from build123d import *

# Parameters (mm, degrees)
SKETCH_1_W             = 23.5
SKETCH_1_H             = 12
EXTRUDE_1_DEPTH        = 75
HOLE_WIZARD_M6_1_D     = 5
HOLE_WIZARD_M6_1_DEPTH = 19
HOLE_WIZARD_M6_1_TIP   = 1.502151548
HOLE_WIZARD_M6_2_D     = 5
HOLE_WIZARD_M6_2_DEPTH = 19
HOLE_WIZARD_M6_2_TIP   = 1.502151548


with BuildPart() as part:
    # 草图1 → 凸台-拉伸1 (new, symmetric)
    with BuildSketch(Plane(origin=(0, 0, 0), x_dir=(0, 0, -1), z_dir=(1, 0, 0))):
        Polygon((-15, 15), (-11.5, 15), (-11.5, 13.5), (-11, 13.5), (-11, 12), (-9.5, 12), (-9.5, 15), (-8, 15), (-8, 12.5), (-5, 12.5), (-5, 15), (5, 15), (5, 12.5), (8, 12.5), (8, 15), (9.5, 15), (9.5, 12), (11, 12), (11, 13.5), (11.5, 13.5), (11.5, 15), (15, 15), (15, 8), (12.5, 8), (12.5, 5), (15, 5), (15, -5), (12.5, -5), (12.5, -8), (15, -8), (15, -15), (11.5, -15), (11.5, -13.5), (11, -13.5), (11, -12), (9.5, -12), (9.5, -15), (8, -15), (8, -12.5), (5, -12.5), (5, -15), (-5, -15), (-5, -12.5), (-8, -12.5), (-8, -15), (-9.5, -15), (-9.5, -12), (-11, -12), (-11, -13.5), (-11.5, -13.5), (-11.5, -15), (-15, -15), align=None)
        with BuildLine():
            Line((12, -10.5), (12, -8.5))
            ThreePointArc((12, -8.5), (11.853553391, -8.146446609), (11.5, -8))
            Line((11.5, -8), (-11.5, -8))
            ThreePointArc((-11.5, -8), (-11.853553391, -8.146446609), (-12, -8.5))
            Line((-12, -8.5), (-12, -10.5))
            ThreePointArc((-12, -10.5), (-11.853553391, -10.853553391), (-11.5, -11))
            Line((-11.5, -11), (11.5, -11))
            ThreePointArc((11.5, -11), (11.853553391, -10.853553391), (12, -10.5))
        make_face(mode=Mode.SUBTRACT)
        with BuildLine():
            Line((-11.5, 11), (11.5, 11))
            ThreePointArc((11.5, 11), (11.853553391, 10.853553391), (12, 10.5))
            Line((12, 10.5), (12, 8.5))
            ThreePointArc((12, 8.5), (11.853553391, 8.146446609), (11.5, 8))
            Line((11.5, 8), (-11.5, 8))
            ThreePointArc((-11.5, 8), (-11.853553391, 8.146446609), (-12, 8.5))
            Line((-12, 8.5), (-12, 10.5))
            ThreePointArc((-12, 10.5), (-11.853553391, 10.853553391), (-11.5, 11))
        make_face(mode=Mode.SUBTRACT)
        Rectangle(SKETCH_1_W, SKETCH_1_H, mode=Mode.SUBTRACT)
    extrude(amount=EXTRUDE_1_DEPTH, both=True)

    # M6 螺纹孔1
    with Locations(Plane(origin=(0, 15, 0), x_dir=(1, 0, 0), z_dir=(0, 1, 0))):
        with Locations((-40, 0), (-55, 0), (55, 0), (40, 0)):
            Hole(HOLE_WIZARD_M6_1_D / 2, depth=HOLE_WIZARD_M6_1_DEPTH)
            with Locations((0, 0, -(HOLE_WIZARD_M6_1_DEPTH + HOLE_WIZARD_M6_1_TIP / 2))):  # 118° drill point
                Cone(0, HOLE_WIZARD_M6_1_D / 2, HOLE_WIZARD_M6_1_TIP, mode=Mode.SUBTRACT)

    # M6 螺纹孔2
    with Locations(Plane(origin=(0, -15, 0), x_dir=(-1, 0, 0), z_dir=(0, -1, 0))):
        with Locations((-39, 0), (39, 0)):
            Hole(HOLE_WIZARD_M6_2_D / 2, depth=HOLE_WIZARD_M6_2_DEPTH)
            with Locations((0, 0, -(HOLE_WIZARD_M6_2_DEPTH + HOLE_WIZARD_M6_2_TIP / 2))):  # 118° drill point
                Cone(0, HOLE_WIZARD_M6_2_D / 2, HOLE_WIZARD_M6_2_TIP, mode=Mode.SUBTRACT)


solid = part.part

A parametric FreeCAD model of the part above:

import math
import FreeCAD as App
import Part
import Sketcher
Q = App.Units.Quantity


def add_polygon(sketch, points):
    """Adds a closed chain of lines whose ends are joined by coincident constraints."""
    first, n = sketch.GeometryCount, len(points)
    for a, b in zip(points, points[1:] + points[:1]):
        sketch.addGeometry(Part.LineSegment(App.Vector(*a, 0), App.Vector(*b, 0)), False)
    for i in range(n):
        sketch.addConstraint(Sketcher.Constraint("Coincident", first + i, 2, first + (i + 1) % n, 1))

doc = App.newDocument("Part")
body = doc.addObject("PartDesign::Body", "Body")

sketch1 = doc.addObject("Sketcher::SketchObject", "Sketch")
body.addObject(sketch1)
sketch1.AttachmentSupport = (doc.YZ_Plane, [""])
sketch1.MapMode = "FlatFace"
add_polygon(sketch1, [(15, 11.5), (15, 15), (-15, 15), (-15, 11.5), (-13.5, 11.5), (-13.5, 11), (-12, 11), (-12, 9.5), (-15, 9.5), (-15, 8), (-12.5, 8), (-12.5, 5), (-15, 5), (-15, -5), (-12.5, -5), (-12.5, -8), (-15, -8), (-15, -9.5), (-12, -9.5), (-12, -11), (-13.5, -11), (-13.5, -11.5), (-15, -11.5), (-15, -15), (-8, -15), (-8, -12.5), (-5, -12.5), (-5, -15), (5, -15), (5, -12.5), (8, -12.5), (8, -15), (15, -15), (15, -11.5), (13.5, -11.5), (13.5, -11), (12, -11), (12, -9.5), (15, -9.5), (15, -8), (12.5, -8), (12.5, -5), (15, -5), (15, 5), (12.5, 5), (12.5, 8), (15, 8), (15, 9.5), (12, 9.5), (12, 11), (13.5, 11), (13.5, 11.5)])
sketch1.addGeometry(Part.ArcOfCircle(Part.Circle(App.Vector(-10.5, -11.5, 0), App.Vector(0, 0, 1), 0.5), math.radians(180), math.radians(270)), False)
sketch1.addGeometry(Part.LineSegment(App.Vector(-11, -11.5, 0), App.Vector(-11, 11.5, 0)), False)
sketch1.addGeometry(Part.ArcOfCircle(Part.Circle(App.Vector(-10.5, 11.5, 0), App.Vector(0, 0, 1), 0.5), math.radians(90), math.radians(180)), False)
sketch1.addGeometry(Part.LineSegment(App.Vector(-10.5, 12, 0), App.Vector(-8.5, 12, 0)), False)
sketch1.addGeometry(Part.ArcOfCircle(Part.Circle(App.Vector(-8.5, 11.5, 0), App.Vector(0, 0, 1), 0.5), math.radians(0), math.radians(90)), False)
sketch1.addGeometry(Part.LineSegment(App.Vector(-8, 11.5, 0), App.Vector(-8, -11.5, 0)), False)
sketch1.addGeometry(Part.ArcOfCircle(Part.Circle(App.Vector(-8.5, -11.5, 0), App.Vector(0, 0, 1), 0.5), math.radians(-90), math.radians(0)), False)
sketch1.addGeometry(Part.LineSegment(App.Vector(-8.5, -12, 0), App.Vector(-10.5, -12, 0)), False)
add_polygon(sketch1, [(-6, 11.75), (6, 11.75), (6, -11.75), (-6, -11.75)])
sketch1.addGeometry(Part.LineSegment(App.Vector(11, 11.5, 0), App.Vector(11, -11.5, 0)), False)
sketch1.addGeometry(Part.ArcOfCircle(Part.Circle(App.Vector(10.5, -11.5, 0), App.Vector(0, 0, 1), 0.5), math.radians(-90), math.radians(0)), False)
sketch1.addGeometry(Part.LineSegment(App.Vector(10.5, -12, 0), App.Vector(8.5, -12, 0)), False)
sketch1.addGeometry(Part.ArcOfCircle(Part.Circle(App.Vector(8.5, -11.5, 0), App.Vector(0, 0, 1), 0.5), math.radians(180), math.radians(270)), False)
sketch1.addGeometry(Part.LineSegment(App.Vector(8, -11.5, 0), App.Vector(8, 11.5, 0)), False)
sketch1.addGeometry(Part.ArcOfCircle(Part.Circle(App.Vector(8.5, 11.5, 0), App.Vector(0, 0, 1), 0.5), math.radians(90), math.radians(180)), False)
sketch1.addGeometry(Part.LineSegment(App.Vector(8.5, 12, 0), App.Vector(10.5, 12, 0)), False)
sketch1.addGeometry(Part.ArcOfCircle(Part.Circle(App.Vector(10.5, 11.5, 0), App.Vector(0, 0, 1), 0.5), math.radians(0), math.radians(90)), False)
sketch1.addConstraint([
    Sketcher.Constraint("Tangent", 52, 1, 53, 1),
    Sketcher.Constraint("Tangent", 53, 2, 54, 2),
    Sketcher.Constraint("Tangent", 54, 1, 55, 1),
    Sketcher.Constraint("Tangent", 55, 2, 56, 2),
    Sketcher.Constraint("Tangent", 56, 1, 57, 1),
    Sketcher.Constraint("Tangent", 57, 2, 58, 2),
    Sketcher.Constraint("Tangent", 58, 1, 59, 1),
    Sketcher.Constraint("Tangent", 59, 2, 52, 2),
    Sketcher.Constraint("Tangent", 64, 2, 65, 2),
    Sketcher.Constraint("Tangent", 65, 1, 66, 1),
    Sketcher.Constraint("Tangent", 66, 2, 67, 2),
    Sketcher.Constraint("Tangent", 67, 1, 68, 1),
    Sketcher.Constraint("Tangent", 68, 2, 69, 2),
    Sketcher.Constraint("Tangent", 69, 1, 70, 1),
    Sketcher.Constraint("Tangent", 70, 2, 71, 2),
    Sketcher.Constraint("Tangent", 71, 1, 64, 1),
    Sketcher.Constraint("Vertical", 0),
    Sketcher.Constraint("Horizontal", 1),
    Sketcher.Constraint("Vertical", 2),
    Sketcher.Constraint("Horizontal", 3),
    Sketcher.Constraint("Vertical", 4),
    Sketcher.Constraint("Horizontal", 5),
    Sketcher.Constraint("Vertical", 6),
    Sketcher.Constraint("Horizontal", 7),
    Sketcher.Constraint("Vertical", 8),
    Sketcher.Constraint("Horizontal", 9),
    Sketcher.Constraint("Vertical", 10),
    Sketcher.Constraint("Horizontal", 11),
    Sketcher.Constraint("Vertical", 12),
    Sketcher.Constraint("Horizontal", 13),
    Sketcher.Constraint("Vertical", 14),
    Sketcher.Constraint("Horizontal", 15),
    Sketcher.Constraint("Vertical", 16),
    Sketcher.Constraint("Horizontal", 17),
    Sketcher.Constraint("Vertical", 18),
    Sketcher.Constraint("Horizontal", 19),
    Sketcher.Constraint("Vertical", 20),
    Sketcher.Constraint("Horizontal", 21),
    Sketcher.Constraint("Vertical", 22),
    Sketcher.Constraint("Horizontal", 23),
    Sketcher.Constraint("Vertical", 24),
    Sketcher.Constraint("Horizontal", 25),
    Sketcher.Constraint("Vertical", 26),
    Sketcher.Constraint("Horizontal", 27),
    Sketcher.Constraint("Vertical", 28),
    Sketcher.Constraint("Horizontal", 29),
    Sketcher.Constraint("Vertical", 30),
    Sketcher.Constraint("Horizontal", 31),
    Sketcher.Constraint("Vertical", 32),
    Sketcher.Constraint("Horizontal", 33),
    Sketcher.Constraint("Vertical", 34),
    Sketcher.Constraint("Horizontal", 35),
    Sketcher.Constraint("Vertical", 36),
    Sketcher.Constraint("Horizontal", 37),
    Sketcher.Constraint("Vertical", 38),
    Sketcher.Constraint("Horizontal", 39),
    Sketcher.Constraint("Vertical", 40),
    Sketcher.Constraint("Horizontal", 41),
    Sketcher.Constraint("Vertical", 42),
    Sketcher.Constraint("Horizontal", 43),
    Sketcher.Constraint("Vertical", 44),
    Sketcher.Constraint("Horizontal", 45),
    Sketcher.Constraint("Vertical", 46),
    Sketcher.Constraint("Horizontal", 47),
    Sketcher.Constraint("Vertical", 48),
    Sketcher.Constraint("Horizontal", 49),
    Sketcher.Constraint("Vertical", 50),
    Sketcher.Constraint("Horizontal", 51),
    Sketcher.Constraint("Vertical", 53),
    Sketcher.Constraint("Horizontal", 55),
    Sketcher.Constraint("Vertical", 57),
    Sketcher.Constraint("Horizontal", 59),
    Sketcher.Constraint("Horizontal", 60),
    Sketcher.Constraint("Vertical", 61),
    Sketcher.Constraint("Horizontal", 62),
    Sketcher.Constraint("Vertical", 63),
    Sketcher.Constraint("Vertical", 64),
    Sketcher.Constraint("Horizontal", 66),
    Sketcher.Constraint("Vertical", 68),
    Sketcher.Constraint("Horizontal", 70),
    Sketcher.Constraint("Equal", 52, 54),
    Sketcher.Constraint("Equal", 54, 56),
    Sketcher.Constraint("Equal", 56, 58),
    Sketcher.Constraint("Equal", 58, 65),
    Sketcher.Constraint("Equal", 65, 67),
    Sketcher.Constraint("Equal", 67, 69),
    Sketcher.Constraint("Equal", 69, 71),
    Sketcher.Constraint("Symmetric", 54, 3, 65, 3, -1, 1),
    Sketcher.Constraint("Symmetric", 58, 3, 69, 3, -1, 1),
    Sketcher.Constraint("Symmetric", 0, 2, 22, 2, -1, 1),
    Sketcher.Constraint("Symmetric", 1, 2, 31, 2, -1, 1),
    Sketcher.Constraint("Symmetric", 3, 2, 33, 2, -1, 1),
    Sketcher.Constraint("Symmetric", 5, 2, 35, 2, -1, 1),
    Sketcher.Constraint("Symmetric", 7, 2, 37, 2, -1, 1),
    Sketcher.Constraint("Symmetric", 9, 2, 39, 2, -1, 1),
    Sketcher.Constraint("Symmetric", 11, 2, 41, 2, -1, 1),
    Sketcher.Constraint("Symmetric", 13, 2, 43, 2, -1, 1),
    Sketcher.Constraint("Symmetric", 15, 2, 45, 2, -1, 1),
    Sketcher.Constraint("Symmetric", 17, 2, 47, 2, -1, 1),
    Sketcher.Constraint("Symmetric", 19, 2, 49, 2, -1, 1),
    Sketcher.Constraint("Symmetric", 60, 2, 62, 2, -1, 1),
    Sketcher.Constraint("Symmetric", 25, 2, 28, 2, -2),
    Sketcher.Constraint("Symmetric", 21, 2, 32, 2, -2),
    Sketcher.Constraint("Symmetric", 19, 2, 34, 2, -2),
    Sketcher.Constraint("Symmetric", 17, 2, 36, 2, -2),
    Sketcher.Constraint("Symmetric", 15, 2, 38, 2, -2),
    Sketcher.Constraint("Symmetric", 13, 2, 40, 2, -2),
    Sketcher.Constraint("Horizontal", 58, 3, 65, 3),
    Sketcher.Constraint("Horizontal", 71, 3, 2, 2),
    Sketcher.Constraint("Horizontal", 23, 2, 26, 2),
    Sketcher.Constraint("Horizontal", 3, 2, 50, 2),
    Sketcher.Constraint("Vertical", 2, 2, 7, 2),
    Sketcher.Constraint("Vertical", 8, 2, 11, 2),
    Sketcher.Constraint("Vertical", 24, 2, 56, 1),
    Sketcher.Constraint("Vertical", 30, 2, 67, 1),
    Sketcher.Constraint("Equal", 3, 5),
    Sketcher.Constraint("Equal", 17, 25),
    Sketcher.Constraint("Equal", 51, 6),
    Sketcher.Constraint("Equal", 6, 8),
    Sketcher.Constraint("Equal", 47, 10),
    Sketcher.Constraint("Equal", 27, 12),
    Sketcher.Constraint("Equal", 45, 24),
    Sketcher.Constraint("Radius", 52, Q("0.5 mm")),
    Sketcher.Constraint("DistanceX", 1, 2, 1, 1, Q("30 mm")),
    Sketcher.Constraint("DistanceX", 7, 2, 7, 1, Q("3 mm")),
    Sketcher.Constraint("DistanceX", 23, 1, 23, 2, Q("7 mm")),
    Sketcher.Constraint("DistanceX", 55, 1, 55, 2, Q("2 mm")),
    Sketcher.Constraint("DistanceX", 60, 1, 60, 2, Q("12 mm")),
    Sketcher.Constraint("DistanceY", 53, 1, 53, 2, Q("23 mm")),
    Sketcher.Constraint("DistanceX", 9, 1, 9, 2, Q("2.5 mm")),
    Sketcher.Constraint("DistanceY", 0, 1, 0, 2, Q("3.5 mm")),
    Sketcher.Constraint("DistanceY", 61, 2, 61, 1, Q("23.5 mm")),
])
pad1 = doc.addObject("PartDesign::Pad", "Pad")
body.addObject(pad1)
pad1.Profile = sketch1
pad1.Length = 150
pad1.Midplane = True

sketch2 = doc.addObject("Sketcher::SketchObject", "Sketch001")
body.addObject(sketch2)
sketch2.AttachmentSupport = (doc.XZ_Plane, [""])
sketch2.MapMode = "FlatFace"
sketch2.AttachmentOffset = App.Placement(App.Vector(0, 0, -15), App.Rotation())
sketch2.addGeometry([
    Part.Circle(App.Vector(-40, 0, 0), App.Vector(0, 0, 1), 2.5),
    Part.Circle(App.Vector(-55, 0, 0), App.Vector(0, 0, 1), 2.5),
    Part.Circle(App.Vector(55, 0, 0), App.Vector(0, 0, 1), 2.5),
    Part.Circle(App.Vector(40, 0, 0), App.Vector(0, 0, 1), 2.5),
], False)
sketch2.addConstraint([
    Sketcher.Constraint("Equal", 0, 1),
    Sketcher.Constraint("Equal", 1, 2),
    Sketcher.Constraint("Equal", 2, 3),
    Sketcher.Constraint("Symmetric", 1, 3, 2, 3, -1, 1),
    Sketcher.Constraint("Symmetric", 0, 3, 3, 3, -1, 1),
    Sketcher.Constraint("PointOnObject", 0, 3, -1),
    Sketcher.Constraint("PointOnObject", 1, 3, -1),
    Sketcher.Constraint("Diameter", 0, Q("5 mm")),
    Sketcher.Constraint("DistanceX", 0, 3, -1, 1, Q("40 mm")),
    Sketcher.Constraint("DistanceX", 1, 3, -1, 1, Q("55 mm")),
])
doc.recompute()
hole = doc.addObject("PartDesign::Hole", "Hole")
body.addObject(hole)
hole.Profile = sketch2
hole.ThreadType = "None"
hole.Diameter = 5
hole.DepthType = "Dimension"
hole.Depth = 19
hole.DrillPoint = "Angled"
hole.DrillPointAngle = 118
hole.Reversed = True

sketch3 = doc.addObject("Sketcher::SketchObject", "Sketch002")
body.addObject(sketch3)
sketch3.AttachmentSupport = (doc.XZ_Plane, [""])
sketch3.MapMode = "FlatFace"
sketch3.AttachmentOffset = App.Placement(App.Vector(0, 0, 15), App.Rotation())
sketch3.addGeometry([
    Part.Circle(App.Vector(39, 0, 0), App.Vector(0, 0, 1), 2.5),
    Part.Circle(App.Vector(-39, 0, 0), App.Vector(0, 0, 1), 2.5),
], False)
sketch3.addConstraint([
    Sketcher.Constraint("Equal", 0, 1),
    Sketcher.Constraint("Symmetric", 0, 3, 1, 3, -1, 1),
    Sketcher.Constraint("PointOnObject", 0, 3, -1),
    Sketcher.Constraint("Diameter", 0, Q("5 mm")),
    Sketcher.Constraint("DistanceX", -1, 1, 0, 3, Q("39 mm")),
])
doc.recompute()
hole2 = doc.addObject("PartDesign::Hole", "Hole001")
body.addObject(hole2)
hole2.Profile = sketch3
hole2.ThreadType = "None"
hole2.Diameter = 5
hole2.DepthType = "Dimension"
hole2.Depth = 19
hole2.DrillPoint = "Angled"
hole2.DrillPointAngle = 118

doc.recompute()
